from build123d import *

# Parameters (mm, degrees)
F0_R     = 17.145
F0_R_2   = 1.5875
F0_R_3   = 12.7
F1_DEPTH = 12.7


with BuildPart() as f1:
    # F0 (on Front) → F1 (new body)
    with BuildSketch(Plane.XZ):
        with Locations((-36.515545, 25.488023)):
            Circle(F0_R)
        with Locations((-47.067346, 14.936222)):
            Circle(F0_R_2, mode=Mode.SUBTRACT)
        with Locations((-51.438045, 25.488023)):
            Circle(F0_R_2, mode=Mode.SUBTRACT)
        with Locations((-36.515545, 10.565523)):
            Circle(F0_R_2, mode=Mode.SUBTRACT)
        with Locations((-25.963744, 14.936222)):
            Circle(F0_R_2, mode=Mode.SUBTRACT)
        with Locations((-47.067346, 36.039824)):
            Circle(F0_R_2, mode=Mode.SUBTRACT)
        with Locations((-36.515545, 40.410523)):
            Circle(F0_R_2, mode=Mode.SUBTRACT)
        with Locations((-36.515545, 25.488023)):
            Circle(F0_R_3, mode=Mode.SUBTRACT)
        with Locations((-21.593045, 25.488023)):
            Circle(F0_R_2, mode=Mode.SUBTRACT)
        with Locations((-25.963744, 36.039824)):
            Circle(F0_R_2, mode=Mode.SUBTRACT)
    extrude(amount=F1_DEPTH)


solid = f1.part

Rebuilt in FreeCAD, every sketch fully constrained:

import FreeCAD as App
import Part
import Sketcher
from FreeCAD import Vector
Q = App.Units.Quantity

doc = App.newDocument("Part")
body = doc.addObject("PartDesign::Body", "Body")

sketch1 = doc.addObject("Sketcher::SketchObject", "Sketch")
body.addObject(sketch1)
sketch1.AttachmentSupport = (doc.XZ_Plane, [""])
sketch1.MapMode = "FlatFace"
sketch1.addGeometry([
    Part.Circle(Vector(-36.5, 25.5, 0), Vector(0, 0, 1), 17.1),
    Part.Circle(Vector(-47.1, 14.9, 0), Vector(0, 0, 1), 1.6),
    Part.Circle(Vector(-36.5, 10.6, 0), Vector(0, 0, 1), 1.6),
    Part.Circle(Vector(-26, 14.9, 0), Vector(0, 0, 1), 1.6),
    Part.Circle(Vector(-51.4, 25.5, 0), Vector(0, 0, 1), 1.6),
    Part.Circle(Vector(-36.5, 25.5, 0), Vector(0, 0, 1), 12.7),
    Part.Circle(Vector(-47.1, 36, 0), Vector(0, 0, 1), 1.6),
    Part.Circle(Vector(-36.5, 40.4, 0), Vector(0, 0, 1), 1.6),
    Part.Circle(Vector(-21.6, 25.5, 0), Vector(0, 0, 1), 1.6),
    Part.Circle(Vector(-26, 36, 0), Vector(0, 0, 1), 1.6),
], False)
sketch1.addConstraint([
    Sketcher.Constraint("Coincident", 5, 3, 0, 3),
    Sketcher.Constraint("Equal", 1, 2),
    Sketcher.Constraint("Equal", 2, 3),
    Sketcher.Constraint("Equal", 3, 4),
    Sketcher.Constraint("Equal", 4, 6),
    Sketcher.Constraint("Equal", 6, 7),
    Sketcher.Constraint("Equal", 7, 8),
    Sketcher.Constraint("Equal", 8, 9),
    Sketcher.Constraint("Horizontal", 1, 3, 3, 3),
    Sketcher.Constraint("Horizontal", 0, 3, 4, 3),
    Sketcher.Constraint("Horizontal", 5, 3, 8, 3),
    Sketcher.Constraint("Horizontal", 6, 3, 9, 3),
    Sketcher.Constraint("Vertical", 0, 3, 2, 3),
    Sketcher.Constraint("Vertical", 1, 3, 6, 3),
    Sketcher.Constraint("Vertical", 5, 3, 7, 3),
    Sketcher.Constraint("Vertical", 3, 3, 9, 3),
    Sketcher.Constraint("Diameter", 5, Q("1 in")),
    Sketcher.Constraint("Diameter", 0, Q("1.35 in")),
    Sketcher.Constraint("Diameter", 1, Q("0.125 in")),
    Sketcher.Constraint("DistanceY", 2, 3, 0, 3, Q("0.5875 in")),
    Sketcher.Constraint("DistanceX", 4, 3, 0, 3, Q("0.5875 in")),
    Sketcher.Constraint("DistanceY", 0, 3, 7, 3, Q("0.5875 in")),
    Sketcher.Constraint("DistanceX", 0, 3, 8, 3, Q("0.5875 in")),
    Sketcher.Constraint("DistanceX", 1, 3, 0, 3, Q("10.551801 mm")),
    Sketcher.Constraint("DistanceY", 1, 3, 0, 3, Q("10.551801 mm")),
    Sketcher.Constraint("DistanceX", 2, 3, 3, 3, Q("10.551801 mm")),
    Sketcher.Constraint("DistanceY", 4, 3, 6, 3, Q("10.551801 mm")),
    Sketcher.Constraint("DistanceX", 0, 3, -1, 1, Q("36.515545 mm")),
    Sketcher.Constraint("DistanceY", -1, 1, 0, 3, Q("25.488023 mm")),
])
pad1 = doc.addObject("PartDesign::Pad", "Pad")
body.addObject(pad1)
pad1.Profile = sketch1
pad1.Length = Q("0.5 in")

doc.recompute()
